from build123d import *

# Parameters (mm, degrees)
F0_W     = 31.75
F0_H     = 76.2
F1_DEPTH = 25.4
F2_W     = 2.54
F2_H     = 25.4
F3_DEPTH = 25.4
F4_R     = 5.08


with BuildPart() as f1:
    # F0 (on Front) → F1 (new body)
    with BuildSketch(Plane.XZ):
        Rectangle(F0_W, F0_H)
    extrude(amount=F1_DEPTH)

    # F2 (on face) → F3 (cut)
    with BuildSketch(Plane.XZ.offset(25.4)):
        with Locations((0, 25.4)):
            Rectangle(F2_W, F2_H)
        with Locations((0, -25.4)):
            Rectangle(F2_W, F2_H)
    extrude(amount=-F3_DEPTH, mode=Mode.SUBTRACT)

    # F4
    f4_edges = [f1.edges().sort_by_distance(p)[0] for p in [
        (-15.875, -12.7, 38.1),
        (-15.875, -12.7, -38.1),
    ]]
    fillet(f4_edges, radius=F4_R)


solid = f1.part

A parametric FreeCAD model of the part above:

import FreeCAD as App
import Part
import Sketcher

V = App.Vector
Q = App.Units.Quantity


def edges_at(feature, points):
    """Names of the edges that pass closest to the given points."""
    edges = feature.Shape.Edges
    near = lambda p: min(range(len(edges)), key=lambda i: edges[i].distToShape(Part.Vertex(*p))[0])
    return sorted({f"Edge{near(p) + 1}" for p in points})

doc = App.newDocument("Part")
body = doc.addObject("PartDesign::Body", "Body")

sketch1 = body.newObject("Sketcher::SketchObject", "Sketch")
sketch1.AttachmentSupport = (doc.getObject("XZ_Plane"), [""])
sketch1.MapMode = "FlatFace"
sketch1.addGeometry([
    Part.LineSegment(V(-16, 38, 0), V(-16, -38, 0)),
    Part.LineSegment(V(-16, -38, 0), V(16, -38, 0)),
    Part.LineSegment(V(16, -38, 0), V(16, 38, 0)),
    Part.LineSegment(V(16, 38, 0), V(-16, 38, 0)),
], False)
sketch1.addConstraint([
    Sketcher.Constraint("Coincident", 0, 2, 1, 1),
    Sketcher.Constraint("Coincident", 1, 2, 2, 1),
    Sketcher.Constraint("Coincident", 2, 2, 3, 1),
    Sketcher.Constraint("Coincident", 3, 2, 0, 1),
    Sketcher.Constraint("Vertical", 0),
    Sketcher.Constraint("Horizontal", 1),
    Sketcher.Constraint("Vertical", 2),
    Sketcher.Constraint("Horizontal", 3),
    Sketcher.Constraint("Symmetric", 0, 2, 2, 2, -1, 1),
    Sketcher.Constraint("DistanceY", 0, 2, 0, 1, Q("3 in")),
    Sketcher.Constraint("DistanceX", 1, 1, 1, 2, Q("1.25 in")),
])
pad1 = body.newObject("PartDesign::Pad", "Pad")
pad1.Profile = sketch1
pad1.Length = Q("1 in")

sketch2 = body.newObject("Sketcher::SketchObject", "Sketch001")
sketch2.AttachmentSupport = (doc.getObject("XZ_Plane"), [""])
sketch2.MapMode = "FlatFace"
sketch2.AttachmentOffset = App.Placement(V(0, 0, 1 * 25.4), App.Rotation())
sketch2.addGeometry([
    Part.LineSegment(V(-1.3, 38.1, 0), V(-1.3, 12.7, 0)),
    Part.LineSegment(V(-1.3, 12.7, 0), V(1.3, 12.7, 0)),
    Part.LineSegment(V(1.3, 12.7, 0), V(1.3, 38.1, 0)),
    Part.LineSegment(V(1.3, 38.1, 0), V(-1.3, 38.1, 0)),
    Part.LineSegment(V(-1.3, -12.7, 0), V(-1.3, -38.1, 0)),
    Part.LineSegment(V(-1.3, -38.1, 0), V(1.3, -38.1, 0)),
    Part.LineSegment(V(1.3, -38.1, 0), V(1.3, -12.7, 0)),
    Part.LineSegment(V(1.3, -12.7, 0), V(-1.3, -12.7, 0)),
], False)
sketch2.addConstraint([
    Sketcher.Constraint("Coincident", 0, 2, 1, 1),
    Sketcher.Constraint("Coincident", 1, 2, 2, 1),
    Sketcher.Constraint("Coincident", 2, 2, 3, 1),
    Sketcher.Constraint("Coincident", 3, 2, 0, 1),
    Sketcher.Constraint("Coincident", 4, 2, 5, 1),
    Sketcher.Constraint("Coincident", 5, 2, 6, 1),
    Sketcher.Constraint("Coincident", 6, 2, 7, 1),
    Sketcher.Constraint("Coincident", 7, 2, 4, 1),
    Sketcher.Constraint("Vertical", 0),
    Sketcher.Constraint("Horizontal", 1),
    Sketcher.Constraint("Vertical", 2),
    Sketcher.Constraint("Horizontal", 3),
    Sketcher.Constraint("Vertical", 4),
    Sketcher.Constraint("Horizontal", 5),
    Sketcher.Constraint("Vertical", 6),
    Sketcher.Constraint("Horizontal", 7),
    Sketcher.Constraint("Symmetric", 2, 2, 4, 2, -1, 1),
    Sketcher.Constraint("Symmetric", 0, 2, 6, 2, -1, 1),
    Sketcher.Constraint("Vertical", 3, 2, 4, 2),
    Sketcher.Constraint("DistanceY", 0, 2, 0, 1, Q("1 in")),
    Sketcher.Constraint("DistanceX", 1, 1, 1, 2, Q("0.1 in")),
    Sketcher.Constraint("DistanceY", 4, 2, 0, 2, Q("2 in")),
])
pocket1 = body.newObject("PartDesign::Pocket", "Pocket")
pocket1.Profile = sketch2
pocket1.Length = Q("1 in")
doc.recompute()

fillet = body.newObject("PartDesign::Fillet", "Fillet")
fillet.Base = (pocket1, edges_at(pocket1, [(-15.875, -12.7, 38.1), (-15.875, -12.7, -38.1)]))
fillet.Radius = Q("0.2 in")

doc.recompute()
